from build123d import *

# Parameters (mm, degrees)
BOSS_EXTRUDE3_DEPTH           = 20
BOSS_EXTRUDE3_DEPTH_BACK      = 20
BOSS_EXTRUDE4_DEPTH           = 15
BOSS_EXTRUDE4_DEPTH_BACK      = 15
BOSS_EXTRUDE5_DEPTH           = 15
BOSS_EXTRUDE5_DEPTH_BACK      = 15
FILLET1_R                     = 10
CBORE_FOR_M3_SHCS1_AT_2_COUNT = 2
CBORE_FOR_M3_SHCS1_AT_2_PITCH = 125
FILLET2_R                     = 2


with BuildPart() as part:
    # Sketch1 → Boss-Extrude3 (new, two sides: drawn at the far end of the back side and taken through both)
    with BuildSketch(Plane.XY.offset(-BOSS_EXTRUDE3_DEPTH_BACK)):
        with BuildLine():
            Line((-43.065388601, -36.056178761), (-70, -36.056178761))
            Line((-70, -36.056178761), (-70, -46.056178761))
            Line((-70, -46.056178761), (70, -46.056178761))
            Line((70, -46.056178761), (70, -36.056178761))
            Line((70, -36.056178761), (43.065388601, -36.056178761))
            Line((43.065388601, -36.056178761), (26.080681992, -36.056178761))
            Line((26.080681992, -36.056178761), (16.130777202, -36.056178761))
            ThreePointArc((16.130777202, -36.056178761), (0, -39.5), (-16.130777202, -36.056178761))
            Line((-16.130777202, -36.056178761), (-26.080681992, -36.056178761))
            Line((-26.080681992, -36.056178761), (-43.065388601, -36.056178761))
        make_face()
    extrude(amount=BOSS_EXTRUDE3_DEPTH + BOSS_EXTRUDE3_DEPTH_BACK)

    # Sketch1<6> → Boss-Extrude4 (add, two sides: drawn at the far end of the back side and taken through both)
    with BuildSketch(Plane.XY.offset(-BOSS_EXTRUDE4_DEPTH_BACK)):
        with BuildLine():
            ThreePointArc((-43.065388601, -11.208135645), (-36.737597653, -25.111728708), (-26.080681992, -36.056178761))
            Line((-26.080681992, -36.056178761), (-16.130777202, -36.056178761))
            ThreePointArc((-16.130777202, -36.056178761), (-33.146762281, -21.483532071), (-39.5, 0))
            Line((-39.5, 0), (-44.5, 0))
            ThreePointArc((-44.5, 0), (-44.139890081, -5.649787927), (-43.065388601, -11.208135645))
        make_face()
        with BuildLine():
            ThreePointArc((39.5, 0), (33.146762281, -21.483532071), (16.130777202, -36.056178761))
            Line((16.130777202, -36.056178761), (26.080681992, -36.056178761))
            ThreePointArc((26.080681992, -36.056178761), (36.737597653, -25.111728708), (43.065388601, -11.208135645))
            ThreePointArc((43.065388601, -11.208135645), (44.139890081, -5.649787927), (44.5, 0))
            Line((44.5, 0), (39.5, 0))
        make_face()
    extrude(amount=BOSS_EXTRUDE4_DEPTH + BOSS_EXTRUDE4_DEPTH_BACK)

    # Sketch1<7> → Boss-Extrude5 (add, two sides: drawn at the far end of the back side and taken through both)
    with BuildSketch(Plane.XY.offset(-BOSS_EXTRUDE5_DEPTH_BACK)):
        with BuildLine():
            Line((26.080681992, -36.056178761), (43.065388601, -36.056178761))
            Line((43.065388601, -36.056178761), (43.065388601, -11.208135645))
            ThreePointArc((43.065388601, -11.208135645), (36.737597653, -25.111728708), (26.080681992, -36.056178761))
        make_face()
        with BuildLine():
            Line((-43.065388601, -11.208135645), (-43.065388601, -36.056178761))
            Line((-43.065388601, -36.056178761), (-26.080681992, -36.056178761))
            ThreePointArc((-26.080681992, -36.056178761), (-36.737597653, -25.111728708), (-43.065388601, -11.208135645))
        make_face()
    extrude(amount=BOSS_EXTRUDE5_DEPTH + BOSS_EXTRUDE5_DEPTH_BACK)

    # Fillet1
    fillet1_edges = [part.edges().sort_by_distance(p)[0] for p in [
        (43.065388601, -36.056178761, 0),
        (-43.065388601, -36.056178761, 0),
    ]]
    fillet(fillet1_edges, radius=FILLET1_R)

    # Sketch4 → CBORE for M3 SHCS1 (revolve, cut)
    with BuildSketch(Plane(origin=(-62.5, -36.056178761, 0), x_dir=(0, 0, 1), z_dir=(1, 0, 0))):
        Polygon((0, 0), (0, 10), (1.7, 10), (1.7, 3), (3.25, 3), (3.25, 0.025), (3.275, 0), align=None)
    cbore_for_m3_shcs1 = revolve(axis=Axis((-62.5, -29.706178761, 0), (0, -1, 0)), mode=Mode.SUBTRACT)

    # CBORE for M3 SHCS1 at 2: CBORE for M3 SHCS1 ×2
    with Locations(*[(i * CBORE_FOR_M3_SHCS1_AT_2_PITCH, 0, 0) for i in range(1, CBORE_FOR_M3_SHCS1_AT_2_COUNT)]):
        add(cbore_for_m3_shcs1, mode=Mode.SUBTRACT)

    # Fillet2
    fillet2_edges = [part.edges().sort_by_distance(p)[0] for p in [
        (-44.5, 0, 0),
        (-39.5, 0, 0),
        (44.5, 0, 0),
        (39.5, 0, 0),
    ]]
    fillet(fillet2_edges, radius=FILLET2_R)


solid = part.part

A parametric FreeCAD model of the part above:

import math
import FreeCAD as App
import Part
import Sketcher
from FreeCAD import Vector
Q = App.Units.Quantity


def edges_at(feature, points):
    """Names of the edges that pass closest to the given points."""
    edges = feature.Shape.Edges
    near = lambda p: min(range(len(edges)), key=lambda i: edges[i].distToShape(Part.Vertex(*p))[0])
    return sorted({f"Edge{near(p) + 1}" for p in points})


def add_polygon(sketch, points):
    """Adds a closed chain of lines whose ends are joined by coincident constraints."""
    first, n = sketch.GeometryCount, len(points)
    for a, b in zip(points, points[1:] + points[:1]):
        sketch.addGeometry(Part.LineSegment(App.Vector(*a, 0), App.Vector(*b, 0)), False)
    for i in range(n):
        sketch.addConstraint(Sketcher.Constraint("Coincident", first + i, 2, first + (i + 1) % n, 1))

doc = App.newDocument("Part")
body = doc.addObject("PartDesign::Body", "Body")

# Sketch on XY plane
sketch1 = doc.addObject("Sketcher::SketchObject", "Sketch")
body.addObject(sketch1)
sketch1.AttachmentSupport = (doc.XY_Plane, [""])
sketch1.MapMode = "FlatFace"
sketch1.addGeometry([
    Part.LineSegment(Vector(-70, -36, 0), Vector(-70, -46, 0)),  # 0
    Part.LineSegment(Vector(-70, -46, 0), Vector(70, -46, 0)),  # 1
    Part.LineSegment(Vector(70, -46, 0), Vector(70, -36, 0)),  # 2
    Part.LineSegment(Vector(70, -36, 0), Vector(16, -36, 0)),  # 3
    Part.ArcOfCircle(Part.Circle(Vector(0, 0, 0), Vector(0, 0, 1), 39), math.radians(-114), math.radians(-66)),  # 4
    Part.LineSegment(Vector(-16, -36, 0), Vector(-70, -36, 0)),  # 5
], False)
sketch1.addConstraint([
    Sketcher.Constraint("Coincident", 0, 2, 1, 1),
    Sketcher.Constraint("Coincident", 1, 2, 2, 1),
    Sketcher.Constraint("Coincident", 2, 2, 3, 1),
    Sketcher.Constraint("Coincident", 3, 2, 4, 2),
    Sketcher.Constraint("Coincident", 4, 1, 5, 1),
    Sketcher.Constraint("Coincident", 5, 2, 0, 1),
    Sketcher.Constraint("Vertical", 0),
    Sketcher.Constraint("Horizontal", 1),
    Sketcher.Constraint("Vertical", 2),
    Sketcher.Constraint("Horizontal", 3),
    Sketcher.Constraint("Horizontal", 5),
    Sketcher.Constraint("Coincident", 4, 3, -1, 1),
    Sketcher.Constraint("Symmetric", 2, 2, 5, 2, -2),
    Sketcher.Constraint("Radius", 4, Q("39.5 mm")),
    Sketcher.Constraint("DistanceX", 1, 1, 1, 2, Q("140 mm")),
    Sketcher.Constraint("DistanceY", 0, 2, 0, 1, Q("10 mm")),
    Sketcher.Constraint("DistanceX", 3, 2, 3, 1, Q("53.869223 mm")),
])
pad1 = doc.addObject("PartDesign::Pad", "Pad")
body.addObject(pad1)
pad1.Profile = sketch1
pad1.Type = "TwoLengths"
pad1.Length = 20
pad1.Length2 = 20

# Sketch on XY plane
sketch2 = doc.addObject("Sketcher::SketchObject", "Sketch001")
body.addObject(sketch2)
sketch2.AttachmentSupport = (doc.XY_Plane, [""])
sketch2.MapMode = "FlatFace"
sketch2.addGeometry([
    Part.ArcOfCircle(Part.Circle(Vector(0, 0, 0), Vector(0, 0, 1), 44), math.radians(-165), math.radians(-126)),  # 0
    Part.LineSegment(Vector(-26, -36, 0), Vector(-16, -36, 0)),  # 1
    Part.ArcOfCircle(Part.Circle(Vector(0, 0, 0), Vector(0, 0, 1), 40), math.radians(-180), math.radians(-114)),  # 2
    Part.LineSegment(Vector(-40, 0, 0), Vector(-44, 0, 0)),  # 3
    Part.ArcOfCircle(Part.Circle(Vector(0, 0, 0), Vector(0, 0, 1), 45), math.radians(-180), math.radians(-165.41)),  # 4
    Part.ArcOfCircle(Part.Circle(Vector(0, 0, 0), Vector(0, 0, 1), 40), math.radians(-66), math.radians(0)),  # 5
    Part.LineSegment(Vector(16, -36, 0), Vector(26, -36, 0)),  # 6
    Part.ArcOfCircle(Part.Circle(Vector(0, 0, 0), Vector(0, 0, 1), 44), math.radians(-54), math.radians(-15)),  # 7
    Part.ArcOfCircle(Part.Circle(Vector(0, 0, 0), Vector(0, 0, 1), 45), math.radians(-14.59), math.radians(0)),  # 8
    Part.LineSegment(Vector(44, 0, 0), Vector(40, 0, 0)),  # 9
], False)
sketch2.addConstraint([
    Sketcher.Constraint("Coincident", 0, 2, 1, 1),
    Sketcher.Constraint("Coincident", 1, 2, 2, 2),
    Sketcher.Constraint("Coincident", 2, 1, 3, 1),
    Sketcher.Constraint("Coincident", 3, 2, 4, 1),
    Sketcher.Constraint("Tangent", 4, 2, 0, 1),
    Sketcher.Constraint("Coincident", 5, 1, 6, 1),
    Sketcher.Constraint("Coincident", 6, 2, 7, 1),
    Sketcher.Constraint("Tangent", 7, 2, 8, 1),
    Sketcher.Constraint("Coincident", 8, 2, 9, 1),
    Sketcher.Constraint("Coincident", 9, 2, 5, 2),
    Sketcher.Constraint("Horizontal", 1),
    Sketcher.Constraint("Horizontal", 3),
    Sketcher.Constraint("Horizontal", 6),
    Sketcher.Constraint("Horizontal", 9),
    Sketcher.Constraint("Coincident", 0, 3, -1, 1),
    Sketcher.Constraint("Coincident", 2, 3, -1, 1),
    Sketcher.Constraint("Coincident", 5, 3, -1, 1),
    Sketcher.Constraint("Coincident", 7, 3, -1, 1),
    Sketcher.Constraint("Equal", 0, 4),
    Sketcher.Constraint("Equal", 2, 5),
    Sketcher.Constraint("Equal", 4, 7),
    Sketcher.Constraint("Equal", 7, 8),
    Sketcher.Constraint("PointOnObject", 2, 1, -1),
    Sketcher.Constraint("PointOnObject", 8, 2, -1),
    Sketcher.Constraint("Horizontal", 1, 2, 5, 1),
    Sketcher.Constraint("Horizontal", 4, 2, 7, 2),
    Sketcher.Constraint("Radius", 0, Q("44.5 mm")),
    Sketcher.Constraint("Radius", 2, Q("39.5 mm")),
    Sketcher.Constraint("DistanceX", 1, 1, 1, 2, Q("9.949905 mm")),
    Sketcher.Constraint("DistanceX", 4, 2, -1, 1, Q("43.065389 mm")),
])
pad2 = doc.addObject("PartDesign::Pad", "Pad001")
body.addObject(pad2)
pad2.Profile = sketch2
pad2.Type = "TwoLengths"
pad2.Length = 15
pad2.Length2 = 15

# Sketch on XY plane
sketch3 = doc.addObject("Sketcher::SketchObject", "Sketch002")
body.addObject(sketch3)
sketch3.AttachmentSupport = (doc.XY_Plane, [""])
sketch3.MapMode = "FlatFace"
sketch3.addGeometry([
    Part.LineSegment(Vector(26, -36, 0), Vector(43, -36, 0)),  # 0
    Part.LineSegment(Vector(43, -36, 0), Vector(43, -11, 0)),  # 1
    Part.ArcOfCircle(Part.Circle(Vector(0, 0, 0), Vector(0, 0, 1), 44), math.radians(-54), math.radians(-15)),  # 2
    Part.LineSegment(Vector(-43, -11, 0), Vector(-43, -36, 0)),  # 3
    Part.LineSegment(Vector(-43, -36, 0), Vector(-26, -36, 0)),  # 4
    Part.ArcOfCircle(Part.Circle(Vector(0, 0, 0), Vector(0, 0, 1), 44), math.radians(-165), math.radians(-126)),  # 5
], False)
sketch3.addConstraint([
    Sketcher.Constraint("Coincident", 0, 2, 1, 1),
    Sketcher.Constraint("Coincident", 1, 2, 2, 2),
    Sketcher.Constraint("Coincident", 2, 1, 0, 1),
    Sketcher.Constraint("Coincident", 3, 2, 4, 1),
    Sketcher.Constraint("Coincident", 4, 2, 5, 2),
    Sketcher.Constraint("Coincident", 5, 1, 3, 1),
    Sketcher.Constraint("Horizontal", 0),
    Sketcher.Constraint("Vertical", 1),
    Sketcher.Constraint("Vertical", 3),
    Sketcher.Constraint("Horizontal", 4),
    Sketcher.Constraint("Coincident", 2, 3, -1, 1),
    Sketcher.Constraint("Coincident", 5, 3, -1, 1),
    Sketcher.Constraint("Equal", 2, 5),
    Sketcher.Constraint("Symmetric", 0, 2, 3, 2, -2),
    Sketcher.Constraint("Radius", 2, Q("44.5 mm")),
    Sketcher.Constraint("DistanceX", 0, 1, 0, 2, Q("16.984707 mm")),
    Sketcher.Constraint("DistanceY", 1, 1, 1, 2, Q("24.848043 mm")),
])
pad3 = doc.addObject("PartDesign::Pad", "Pad002")
body.addObject(pad3)
pad3.Profile = sketch3
pad3.Type = "TwoLengths"
pad3.Length = 15
pad3.Length2 = 15
doc.recompute()

fillet = doc.addObject("PartDesign::Fillet", "Fillet")
body.addObject(fillet)
fillet.Base = (pad3, edges_at(pad3, [(43.065, -36.056, 0), (-43.065, -36.056, 0)]))
fillet.Radius = 10

# Sketch on YZ plane
sketch4 = doc.addObject("Sketcher::SketchObject", "Sketch003")
body.addObject(sketch4)
sketch4.AttachmentSupport = (doc.YZ_Plane, [""])
sketch4.MapMode = "FlatFace"
sketch4.AttachmentOffset = App.Placement(Vector(0, 0, -62.5), App.Rotation())
add_polygon(sketch4, [(-46.056, 0), (-36.056, 0), (-36.056, 3.275), (-36.081, 3.25), (-39.056, 3.25), (-39.056, 1.7), (-46.056, 1.7)])  # lines 0-6
sketch4.addConstraint([
    Sketcher.Constraint("Horizontal", 0),
    Sketcher.Constraint("Vertical", 1),
    Sketcher.Constraint("Horizontal", 3),
    Sketcher.Constraint("Vertical", 4),
    Sketcher.Constraint("Horizontal", 5),
    Sketcher.Constraint("Vertical", 6),
    Sketcher.Constraint("PointOnObject", 0, 2, -1),
    Sketcher.Constraint("DistanceX", 0, 1, 0, 2, Q("10 mm")),
    Sketcher.Constraint("DistanceX", 5, 2, 5, 1, Q("7 mm")),
    Sketcher.Constraint("Angle", 2, Q("-135 deg")),
    Sketcher.Constraint("DistanceY", 6, 2, 6, 1, Q("1.7 mm")),
    Sketcher.Constraint("DistanceY", 4, 2, 4, 1, Q("1.55 mm")),
    Sketcher.Constraint("DistanceX", 3, 2, 3, 1, Q("2.975 mm")),
    Sketcher.Constraint("DistanceX", 0, 2, -1, 1, Q("36.056179 mm")),
])
groove = doc.addObject("PartDesign::Groove", "Groove")
body.addObject(groove)
groove.Profile = sketch4
groove.ReferenceAxis = (sketch4, ["H_Axis"])
groove.Angle = 360
doc.recompute()

linearpattern = doc.addObject("PartDesign::LinearPattern", "LinearPattern")
body.addObject(linearpattern)
linearpattern.Originals = [groove]
linearpattern.Direction = (doc.X_Axis, [""])
linearpattern.Mode = "offset"
linearpattern.Offset = 125
linearpattern.Occurrences = 2
body.Tip = linearpattern
doc.recompute()

fillet2 = doc.addObject("PartDesign::Fillet", "Fillet001")
body.addObject(fillet2)
fillet2.Base = (linearpattern, edges_at(linearpattern, [
    (-44.5, 0, 0),
    (-39.5, 0, 0),
    (44.5, 0, 0),
    (39.5, 0, 0),
]))
fillet2.Radius = 2

doc.recompute()
